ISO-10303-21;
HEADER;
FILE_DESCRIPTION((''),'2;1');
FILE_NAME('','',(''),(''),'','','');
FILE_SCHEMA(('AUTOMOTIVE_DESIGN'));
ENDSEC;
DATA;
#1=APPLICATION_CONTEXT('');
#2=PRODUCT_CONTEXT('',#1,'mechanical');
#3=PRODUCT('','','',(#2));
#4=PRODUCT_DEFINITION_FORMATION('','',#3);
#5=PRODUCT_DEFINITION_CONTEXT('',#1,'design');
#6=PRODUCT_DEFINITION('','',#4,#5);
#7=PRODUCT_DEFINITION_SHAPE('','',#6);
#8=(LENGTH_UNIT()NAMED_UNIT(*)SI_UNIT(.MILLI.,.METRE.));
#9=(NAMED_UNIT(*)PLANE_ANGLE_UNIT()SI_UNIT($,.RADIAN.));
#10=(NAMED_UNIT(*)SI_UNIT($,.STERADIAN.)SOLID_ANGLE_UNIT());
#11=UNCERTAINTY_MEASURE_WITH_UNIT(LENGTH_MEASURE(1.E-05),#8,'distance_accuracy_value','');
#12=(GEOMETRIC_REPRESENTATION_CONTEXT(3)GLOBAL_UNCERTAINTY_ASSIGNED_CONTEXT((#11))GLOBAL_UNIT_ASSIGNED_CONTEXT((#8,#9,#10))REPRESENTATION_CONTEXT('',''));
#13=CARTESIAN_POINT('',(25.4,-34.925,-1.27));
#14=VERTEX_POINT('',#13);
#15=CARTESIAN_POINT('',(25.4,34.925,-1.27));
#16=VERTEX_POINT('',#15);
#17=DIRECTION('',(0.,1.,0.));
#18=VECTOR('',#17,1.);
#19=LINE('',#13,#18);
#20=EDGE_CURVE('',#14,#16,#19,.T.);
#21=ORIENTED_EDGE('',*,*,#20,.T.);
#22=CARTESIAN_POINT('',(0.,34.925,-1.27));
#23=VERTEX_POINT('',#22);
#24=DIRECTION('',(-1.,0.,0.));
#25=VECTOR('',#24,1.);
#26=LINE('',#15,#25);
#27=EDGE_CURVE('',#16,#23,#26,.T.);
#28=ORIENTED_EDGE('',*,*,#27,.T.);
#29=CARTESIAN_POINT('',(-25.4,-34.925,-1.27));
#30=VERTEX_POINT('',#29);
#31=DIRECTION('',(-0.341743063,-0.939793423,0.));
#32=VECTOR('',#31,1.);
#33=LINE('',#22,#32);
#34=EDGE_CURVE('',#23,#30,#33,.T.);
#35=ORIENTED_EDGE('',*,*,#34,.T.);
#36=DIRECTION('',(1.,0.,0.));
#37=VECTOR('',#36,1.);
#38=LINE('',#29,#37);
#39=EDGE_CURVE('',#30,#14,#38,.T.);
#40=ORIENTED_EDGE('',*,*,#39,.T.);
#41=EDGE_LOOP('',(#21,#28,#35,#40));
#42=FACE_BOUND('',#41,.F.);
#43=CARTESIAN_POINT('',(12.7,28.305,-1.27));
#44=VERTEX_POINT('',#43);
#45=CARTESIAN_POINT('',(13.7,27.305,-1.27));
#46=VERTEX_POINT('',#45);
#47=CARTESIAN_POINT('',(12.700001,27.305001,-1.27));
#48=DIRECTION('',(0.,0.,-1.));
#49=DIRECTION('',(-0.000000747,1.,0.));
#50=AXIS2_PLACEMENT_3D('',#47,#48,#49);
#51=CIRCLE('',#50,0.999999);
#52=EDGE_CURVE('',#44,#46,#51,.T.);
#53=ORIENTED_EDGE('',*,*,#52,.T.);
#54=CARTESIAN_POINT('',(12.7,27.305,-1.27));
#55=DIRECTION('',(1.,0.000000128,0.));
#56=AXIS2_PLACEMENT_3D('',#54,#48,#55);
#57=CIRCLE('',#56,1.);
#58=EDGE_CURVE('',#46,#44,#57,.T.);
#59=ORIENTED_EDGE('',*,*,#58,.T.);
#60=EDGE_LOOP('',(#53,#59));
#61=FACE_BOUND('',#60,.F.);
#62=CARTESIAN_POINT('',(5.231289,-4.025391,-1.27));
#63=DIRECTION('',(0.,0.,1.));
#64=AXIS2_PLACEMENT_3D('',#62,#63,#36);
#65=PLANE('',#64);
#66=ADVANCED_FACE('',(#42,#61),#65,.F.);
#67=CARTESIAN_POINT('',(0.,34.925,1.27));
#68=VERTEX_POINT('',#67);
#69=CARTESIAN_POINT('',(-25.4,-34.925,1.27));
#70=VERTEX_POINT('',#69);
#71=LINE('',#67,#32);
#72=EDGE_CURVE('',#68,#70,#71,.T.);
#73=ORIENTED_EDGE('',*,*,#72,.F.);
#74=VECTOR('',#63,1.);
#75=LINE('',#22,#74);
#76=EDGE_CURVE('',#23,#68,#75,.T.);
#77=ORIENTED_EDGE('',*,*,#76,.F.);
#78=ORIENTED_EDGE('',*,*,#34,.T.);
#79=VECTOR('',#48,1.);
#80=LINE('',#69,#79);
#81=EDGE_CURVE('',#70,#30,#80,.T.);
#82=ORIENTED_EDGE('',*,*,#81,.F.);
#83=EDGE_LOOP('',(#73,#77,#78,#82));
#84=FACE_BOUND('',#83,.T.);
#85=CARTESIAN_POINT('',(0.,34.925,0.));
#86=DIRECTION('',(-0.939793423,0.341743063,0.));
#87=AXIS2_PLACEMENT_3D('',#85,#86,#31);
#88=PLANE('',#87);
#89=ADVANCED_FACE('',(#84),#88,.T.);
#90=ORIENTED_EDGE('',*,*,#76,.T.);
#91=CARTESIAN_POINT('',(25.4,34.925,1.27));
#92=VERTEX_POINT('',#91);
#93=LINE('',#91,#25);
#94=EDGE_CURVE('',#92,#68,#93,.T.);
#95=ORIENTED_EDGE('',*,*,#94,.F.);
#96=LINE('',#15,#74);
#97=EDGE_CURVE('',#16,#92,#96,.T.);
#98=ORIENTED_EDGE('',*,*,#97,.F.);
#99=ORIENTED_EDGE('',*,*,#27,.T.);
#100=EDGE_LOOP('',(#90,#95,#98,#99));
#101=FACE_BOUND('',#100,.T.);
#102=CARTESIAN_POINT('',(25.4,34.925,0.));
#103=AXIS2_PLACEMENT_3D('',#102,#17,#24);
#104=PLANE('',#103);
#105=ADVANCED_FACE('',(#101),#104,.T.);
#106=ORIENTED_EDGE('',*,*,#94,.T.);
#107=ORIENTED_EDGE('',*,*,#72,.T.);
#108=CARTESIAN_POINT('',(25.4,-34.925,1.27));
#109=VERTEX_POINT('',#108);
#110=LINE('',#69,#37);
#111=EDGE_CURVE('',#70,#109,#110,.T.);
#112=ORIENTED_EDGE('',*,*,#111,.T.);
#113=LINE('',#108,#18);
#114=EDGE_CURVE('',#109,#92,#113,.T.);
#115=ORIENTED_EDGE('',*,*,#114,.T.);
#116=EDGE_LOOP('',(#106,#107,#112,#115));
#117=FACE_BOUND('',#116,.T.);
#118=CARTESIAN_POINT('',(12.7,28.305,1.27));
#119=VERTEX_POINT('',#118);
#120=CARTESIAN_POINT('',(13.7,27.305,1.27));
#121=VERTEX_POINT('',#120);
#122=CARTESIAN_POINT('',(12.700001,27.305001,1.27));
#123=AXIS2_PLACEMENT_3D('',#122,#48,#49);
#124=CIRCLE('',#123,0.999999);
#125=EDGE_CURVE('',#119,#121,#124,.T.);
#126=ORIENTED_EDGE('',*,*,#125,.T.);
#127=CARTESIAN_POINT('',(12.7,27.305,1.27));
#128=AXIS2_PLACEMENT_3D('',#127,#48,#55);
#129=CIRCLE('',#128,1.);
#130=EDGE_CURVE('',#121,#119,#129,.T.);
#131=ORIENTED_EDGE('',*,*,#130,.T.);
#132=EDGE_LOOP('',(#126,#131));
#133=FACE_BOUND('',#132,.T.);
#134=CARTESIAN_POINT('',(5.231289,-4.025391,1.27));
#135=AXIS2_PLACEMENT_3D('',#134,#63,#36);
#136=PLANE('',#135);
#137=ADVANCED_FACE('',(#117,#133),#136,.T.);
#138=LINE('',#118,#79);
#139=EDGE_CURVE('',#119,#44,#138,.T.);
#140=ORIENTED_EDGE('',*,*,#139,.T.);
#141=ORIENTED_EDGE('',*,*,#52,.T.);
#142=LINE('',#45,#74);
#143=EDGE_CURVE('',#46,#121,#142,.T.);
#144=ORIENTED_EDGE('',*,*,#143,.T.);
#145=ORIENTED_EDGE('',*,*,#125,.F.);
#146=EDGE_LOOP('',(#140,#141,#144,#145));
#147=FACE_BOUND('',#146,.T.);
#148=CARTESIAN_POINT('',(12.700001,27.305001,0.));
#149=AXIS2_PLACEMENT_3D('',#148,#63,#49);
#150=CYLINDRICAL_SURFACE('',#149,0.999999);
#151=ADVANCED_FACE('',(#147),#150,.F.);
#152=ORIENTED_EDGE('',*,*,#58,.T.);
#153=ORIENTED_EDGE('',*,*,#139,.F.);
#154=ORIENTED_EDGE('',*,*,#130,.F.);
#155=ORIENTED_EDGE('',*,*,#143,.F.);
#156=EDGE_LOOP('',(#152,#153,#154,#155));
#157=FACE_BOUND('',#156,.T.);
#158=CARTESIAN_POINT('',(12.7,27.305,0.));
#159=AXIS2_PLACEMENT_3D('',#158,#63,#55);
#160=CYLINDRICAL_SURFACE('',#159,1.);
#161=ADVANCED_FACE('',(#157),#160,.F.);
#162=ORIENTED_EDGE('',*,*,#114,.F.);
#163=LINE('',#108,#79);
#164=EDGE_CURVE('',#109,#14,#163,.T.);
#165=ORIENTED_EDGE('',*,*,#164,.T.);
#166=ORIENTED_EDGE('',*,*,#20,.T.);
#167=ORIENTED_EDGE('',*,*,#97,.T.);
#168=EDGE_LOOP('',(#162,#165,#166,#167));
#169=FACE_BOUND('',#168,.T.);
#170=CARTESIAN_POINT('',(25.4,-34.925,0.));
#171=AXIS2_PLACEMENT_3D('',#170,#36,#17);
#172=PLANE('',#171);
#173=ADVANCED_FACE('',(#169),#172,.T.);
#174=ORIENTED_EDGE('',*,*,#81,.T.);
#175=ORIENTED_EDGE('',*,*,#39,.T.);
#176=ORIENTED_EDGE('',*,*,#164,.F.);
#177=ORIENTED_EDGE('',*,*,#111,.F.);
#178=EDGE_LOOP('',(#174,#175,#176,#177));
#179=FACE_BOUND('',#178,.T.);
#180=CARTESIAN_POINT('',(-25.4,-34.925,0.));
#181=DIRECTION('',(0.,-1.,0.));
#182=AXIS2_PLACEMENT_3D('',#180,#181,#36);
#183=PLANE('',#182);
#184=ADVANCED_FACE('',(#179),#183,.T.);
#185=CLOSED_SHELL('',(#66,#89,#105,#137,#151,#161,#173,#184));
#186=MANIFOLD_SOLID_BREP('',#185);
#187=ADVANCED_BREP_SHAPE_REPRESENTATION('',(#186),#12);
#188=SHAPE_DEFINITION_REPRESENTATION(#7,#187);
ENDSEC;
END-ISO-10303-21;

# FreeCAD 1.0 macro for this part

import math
import FreeCAD as App
import Part
import Sketcher
Q = App.Units.Quantity

doc = App.newDocument("Part")
body = doc.addObject("PartDesign::Body", "Body")

# Sketch on XY plane
sketch1 = doc.addObject("Sketcher::SketchObject", "Sketch")
body.addObject(sketch1)
sketch1.AttachmentSupport = (doc.XY_Plane, [""])
sketch1.MapMode = "FlatFace"
sketch1.addGeometry(Part.LineSegment(App.Vector(25.4, -34.925, 0), App.Vector(25.4, 34.925, 0)), False)
sketch1.addGeometry(Part.LineSegment(App.Vector(25.4, 34.925, 0), App.Vector(0, 34.925, 0)), False)
sketch1.addGeometry(Part.LineSegment(App.Vector(0, 34.925, 0), App.Vector(-25.4, -34.925, 0)), False)
sketch1.addGeometry(Part.LineSegment(App.Vector(-25.4, -34.925, 0), App.Vector(25.4, -34.925, 0)), False)
sketch1.addGeometry(Part.ArcOfCircle(Part.Circle(App.Vector(12.700001, 27.305001, 0), App.Vector(0, 0, 1), 0.999999), math.radians(-0.000043), math.radians(90.000043)), False)
sketch1.addGeometry(Part.ArcOfCircle(Part.Circle(App.Vector(12.7, 27.305, 0), App.Vector(0, 0, 1), 1), math.radians(89.999993), math.radians(360.000007)), False)
sketch1.addConstraint(Sketcher.Constraint("Coincident", 0, 2, 1, 1))
sketch1.addConstraint(Sketcher.Constraint("Coincident", 1, 2, 2, 1))
sketch1.addConstraint(Sketcher.Constraint("Coincident", 2, 2, 3, 1))
sketch1.addConstraint(Sketcher.Constraint("Coincident", 3, 2, 0, 1))
sketch1.addConstraint(Sketcher.Constraint("Tangent", 4, 1, 5, 2))
sketch1.addConstraint(Sketcher.Constraint("Coincident", 5, 1, 4, 2))
sketch1.addConstraint(Sketcher.Constraint("Vertical", 0))
sketch1.addConstraint(Sketcher.Constraint("Horizontal", 1))
sketch1.addConstraint(Sketcher.Constraint("Horizontal", 3))
sketch1.addConstraint(Sketcher.Constraint("Symmetric", 0, 2, 2, 2, -1, 1))
sketch1.addConstraint(Sketcher.Constraint("PointOnObject", 1, 2, -2))
sketch1.addConstraint(Sketcher.Constraint("Horizontal", 5, 3, 4, 1))
sketch1.addConstraint(Sketcher.Constraint("Vertical", 4, 3, 5, 1))
sketch1.addConstraint(Sketcher.Constraint("DistanceX", 1, 2, 1, 1, Q("1 in")))
sketch1.addConstraint(Sketcher.Constraint("DistanceY", 0, 1, 0, 2, Q("2.75 in")))
sketch1.addConstraint(Sketcher.Constraint("DistanceX", -1, 1, 4, 3, Q("0.5 in")))
sketch1.addConstraint(Sketcher.Constraint("DistanceY", 4, 3, 0, 2, Q("0.3 in")))
sketch1.addConstraint(Sketcher.Constraint("Radius", 4, 0.999999))
pad1 = doc.addObject("PartDesign::Pad", "Pad")
body.addObject(pad1)
pad1.Profile = sketch1
pad1.Length = Q("0.1 in")
pad1.Midplane = True

doc.recompute()
